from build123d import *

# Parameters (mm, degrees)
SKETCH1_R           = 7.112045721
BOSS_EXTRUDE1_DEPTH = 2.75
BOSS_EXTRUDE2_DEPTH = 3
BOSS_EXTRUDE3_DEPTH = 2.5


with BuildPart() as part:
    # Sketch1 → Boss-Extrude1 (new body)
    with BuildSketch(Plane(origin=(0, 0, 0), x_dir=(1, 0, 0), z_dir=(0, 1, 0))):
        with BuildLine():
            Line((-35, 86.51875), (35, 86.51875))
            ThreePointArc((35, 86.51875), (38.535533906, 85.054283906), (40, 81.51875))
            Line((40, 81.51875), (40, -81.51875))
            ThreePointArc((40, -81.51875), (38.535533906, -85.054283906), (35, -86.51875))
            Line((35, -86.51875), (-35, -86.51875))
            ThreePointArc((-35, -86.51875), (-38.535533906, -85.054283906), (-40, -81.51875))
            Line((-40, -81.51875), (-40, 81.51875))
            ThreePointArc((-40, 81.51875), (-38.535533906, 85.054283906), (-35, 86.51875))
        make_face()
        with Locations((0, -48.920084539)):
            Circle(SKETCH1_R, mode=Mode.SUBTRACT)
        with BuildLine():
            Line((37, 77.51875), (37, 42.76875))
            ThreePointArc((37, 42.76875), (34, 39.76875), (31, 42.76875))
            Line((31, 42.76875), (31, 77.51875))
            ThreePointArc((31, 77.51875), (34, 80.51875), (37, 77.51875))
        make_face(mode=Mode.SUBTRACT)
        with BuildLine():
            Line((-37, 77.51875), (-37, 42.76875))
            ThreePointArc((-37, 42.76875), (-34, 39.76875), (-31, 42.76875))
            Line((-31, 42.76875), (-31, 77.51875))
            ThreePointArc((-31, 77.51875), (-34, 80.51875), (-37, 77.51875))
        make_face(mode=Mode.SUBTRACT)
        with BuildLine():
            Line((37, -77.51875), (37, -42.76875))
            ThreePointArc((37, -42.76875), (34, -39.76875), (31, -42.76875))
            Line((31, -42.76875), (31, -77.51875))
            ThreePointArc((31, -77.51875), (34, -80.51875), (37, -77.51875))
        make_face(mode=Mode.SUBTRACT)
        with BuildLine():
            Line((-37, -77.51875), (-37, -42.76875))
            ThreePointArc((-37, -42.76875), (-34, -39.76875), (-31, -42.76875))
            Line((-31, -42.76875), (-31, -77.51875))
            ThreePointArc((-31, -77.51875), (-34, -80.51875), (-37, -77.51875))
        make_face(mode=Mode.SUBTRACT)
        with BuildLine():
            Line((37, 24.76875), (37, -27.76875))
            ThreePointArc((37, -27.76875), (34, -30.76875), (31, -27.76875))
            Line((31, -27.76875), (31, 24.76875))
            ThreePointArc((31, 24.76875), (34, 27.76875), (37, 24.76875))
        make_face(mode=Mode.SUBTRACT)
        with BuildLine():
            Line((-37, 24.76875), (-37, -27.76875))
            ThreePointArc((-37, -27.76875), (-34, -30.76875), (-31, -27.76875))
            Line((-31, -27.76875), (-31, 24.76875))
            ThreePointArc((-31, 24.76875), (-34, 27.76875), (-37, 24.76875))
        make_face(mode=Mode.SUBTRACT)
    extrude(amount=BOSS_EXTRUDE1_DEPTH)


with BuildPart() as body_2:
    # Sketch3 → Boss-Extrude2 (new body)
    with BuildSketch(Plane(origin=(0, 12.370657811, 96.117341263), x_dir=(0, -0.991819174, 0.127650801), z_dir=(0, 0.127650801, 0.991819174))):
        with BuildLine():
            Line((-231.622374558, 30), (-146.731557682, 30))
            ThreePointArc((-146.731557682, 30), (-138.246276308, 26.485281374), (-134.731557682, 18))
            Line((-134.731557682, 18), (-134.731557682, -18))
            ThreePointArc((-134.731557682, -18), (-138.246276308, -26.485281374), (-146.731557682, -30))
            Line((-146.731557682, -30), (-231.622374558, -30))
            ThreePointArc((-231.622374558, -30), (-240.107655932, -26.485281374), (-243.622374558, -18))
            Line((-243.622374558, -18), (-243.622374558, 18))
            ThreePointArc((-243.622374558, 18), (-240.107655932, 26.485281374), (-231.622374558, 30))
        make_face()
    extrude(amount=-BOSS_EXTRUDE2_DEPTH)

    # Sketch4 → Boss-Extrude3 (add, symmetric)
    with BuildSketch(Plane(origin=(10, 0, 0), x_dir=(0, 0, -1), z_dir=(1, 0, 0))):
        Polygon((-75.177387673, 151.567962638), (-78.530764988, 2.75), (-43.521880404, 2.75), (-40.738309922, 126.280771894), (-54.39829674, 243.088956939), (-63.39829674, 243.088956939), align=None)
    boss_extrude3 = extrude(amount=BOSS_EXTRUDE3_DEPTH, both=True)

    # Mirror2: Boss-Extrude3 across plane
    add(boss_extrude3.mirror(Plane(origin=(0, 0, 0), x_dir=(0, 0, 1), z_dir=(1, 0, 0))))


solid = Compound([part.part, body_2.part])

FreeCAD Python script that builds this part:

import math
import FreeCAD as App
import Part
import Sketcher

doc = App.newDocument("Part")
body = doc.addObject("PartDesign::Body", "Body")

sketch1 = doc.addObject("Sketcher::SketchObject", "Sketch")
body.addObject(sketch1)
sketch1.AttachmentSupport = (doc.XZ_Plane, [""])
sketch1.MapMode = "FlatFace"
sketch1.addGeometry(Part.LineSegment(App.Vector(35, -86.51875, 0), App.Vector(-35, -86.51875, 0)), False)
sketch1.addGeometry(Part.ArcOfCircle(Part.Circle(App.Vector(-35, -81.51875, 0), App.Vector(0, 0, 1), 5), math.radians(180), math.radians(270)), False)
sketch1.addGeometry(Part.LineSegment(App.Vector(-40, -81.51875, 0), App.Vector(-40, 81.51875, 0)), False)
sketch1.addGeometry(Part.ArcOfCircle(Part.Circle(App.Vector(-35, 81.51875, 0), App.Vector(0, 0, 1), 5), math.radians(90), math.radians(180)), False)
sketch1.addGeometry(Part.LineSegment(App.Vector(-35, 86.51875, 0), App.Vector(35, 86.51875, 0)), False)
sketch1.addGeometry(Part.ArcOfCircle(Part.Circle(App.Vector(35, 81.51875, 0), App.Vector(0, 0, 1), 5), math.radians(0), math.radians(90)), False)
sketch1.addGeometry(Part.LineSegment(App.Vector(40, 81.51875, 0), App.Vector(40, -81.51875, 0)), False)
sketch1.addGeometry(Part.ArcOfCircle(Part.Circle(App.Vector(35, -81.51875, 0), App.Vector(0, 0, 1), 5), math.radians(-90), math.radians(0)), False)
sketch1.addGeometry(Part.ArcOfCircle(Part.Circle(App.Vector(34, 77.51875, 0), App.Vector(0, 0, 1), 3), math.radians(0), math.radians(180)), False)
sketch1.addGeometry(Part.LineSegment(App.Vector(31, 77.51875, 0), App.Vector(31, 42.76875, 0)), False)
sketch1.addGeometry(Part.ArcOfCircle(Part.Circle(App.Vector(34, 42.76875, 0), App.Vector(0, 0, 1), 3), math.radians(180), math.radians(360)), False)
sketch1.addGeometry(Part.LineSegment(App.Vector(37, 42.76875, 0), App.Vector(37, 77.51875, 0)), False)
sketch1.addGeometry(Part.LineSegment(App.Vector(37, -24.76875, 0), App.Vector(37, 27.76875, 0)), False)
sketch1.addGeometry(Part.ArcOfCircle(Part.Circle(App.Vector(34, 27.76875, 0), App.Vector(0, 0, 1), 3), math.radians(0), math.radians(180)), False)
sketch1.addGeometry(Part.LineSegment(App.Vector(31, 27.76875, 0), App.Vector(31, -24.76875, 0)), False)
sketch1.addGeometry(Part.ArcOfCircle(Part.Circle(App.Vector(34, -24.76875, 0), App.Vector(0, 0, 1), 3), math.radians(180), math.radians(360)), False)
sketch1.addGeometry(Part.Circle(App.Vector(0, 48.920085, 0), App.Vector(0, 0, 1), 7.112046), False)
sketch1.addGeometry(Part.LineSegment(App.Vector(-37, 77.51875, 0), App.Vector(-37, 42.76875, 0)), False)
sketch1.addGeometry(Part.ArcOfCircle(Part.Circle(App.Vector(-34, 42.76875, 0), App.Vector(0, 0, 1), 3), math.radians(180), math.radians(360)), False)
sketch1.addGeometry(Part.LineSegment(App.Vector(-31, 42.76875, 0), App.Vector(-31, 77.51875, 0)), False)
sketch1.addGeometry(Part.ArcOfCircle(Part.Circle(App.Vector(-34, 77.51875, 0), App.Vector(0, 0, 1), 3), math.radians(0), math.radians(180)), False)
sketch1.addGeometry(Part.ArcOfCircle(Part.Circle(App.Vector(-34, -24.76875, 0), App.Vector(0, 0, 1), 3), math.radians(180), math.radians(360)), False)
sketch1.addGeometry(Part.LineSegment(App.Vector(-31, -24.76875, 0), App.Vector(-31, 27.76875, 0)), False)
sketch1.addGeometry(Part.ArcOfCircle(Part.Circle(App.Vector(-34, 27.76875, 0), App.Vector(0, 0, 1), 3), math.radians(0), math.radians(180)), False)
sketch1.addGeometry(Part.LineSegment(App.Vector(-37, 27.76875, 0), App.Vector(-37, -24.76875, 0)), False)
sketch1.addGeometry(Part.LineSegment(App.Vector(37, -77.51875, 0), App.Vector(37, -42.76875, 0)), False)
sketch1.addGeometry(Part.ArcOfCircle(Part.Circle(App.Vector(34, -42.76875, 0), App.Vector(0, 0, 1), 3), math.radians(0), math.radians(180)), False)
sketch1.addGeometry(Part.LineSegment(App.Vector(31, -42.76875, 0), App.Vector(31, -77.51875, 0)), False)
sketch1.addGeometry(Part.ArcOfCircle(Part.Circle(App.Vector(34, -77.51875, 0), App.Vector(0, 0, 1), 3), math.radians(180), math.radians(360)), False)
sketch1.addGeometry(Part.ArcOfCircle(Part.Circle(App.Vector(-34, -77.51875, 0), App.Vector(0, 0, 1), 3), math.radians(180), math.radians(360)), False)
sketch1.addGeometry(Part.LineSegment(App.Vector(-31, -77.51875, 0), App.Vector(-31, -42.76875, 0)), False)
sketch1.addGeometry(Part.ArcOfCircle(Part.Circle(App.Vector(-34, -42.76875, 0), App.Vector(0, 0, 1), 3), math.radians(0), math.radians(180)), False)
sketch1.addGeometry(Part.LineSegment(App.Vector(-37, -42.76875, 0), App.Vector(-37, -77.51875, 0)), False)
sketch1.addConstraint(Sketcher.Constraint("Tangent", 0, 2, 1, 2))
sketch1.addConstraint(Sketcher.Constraint("Tangent", 1, 1, 2, 1))
sketch1.addConstraint(Sketcher.Constraint("Tangent", 2, 2, 3, 2))
sketch1.addConstraint(Sketcher.Constraint("Tangent", 3, 1, 4, 1))
sketch1.addConstraint(Sketcher.Constraint("Tangent", 4, 2, 5, 2))
sketch1.addConstraint(Sketcher.Constraint("Tangent", 5, 1, 6, 1))
sketch1.addConstraint(Sketcher.Constraint("Tangent", 6, 2, 7, 2))
sketch1.addConstraint(Sketcher.Constraint("Tangent", 7, 1, 0, 1))
sketch1.addConstraint(Sketcher.Constraint("Tangent", 8, 2, 9, 1))
sketch1.addConstraint(Sketcher.Constraint("Tangent", 9, 2, 10, 1))
sketch1.addConstraint(Sketcher.Constraint("Tangent", 10, 2, 11, 1))
sketch1.addConstraint(Sketcher.Constraint("Tangent", 11, 2, 8, 1))
sketch1.addConstraint(Sketcher.Constraint("Tangent", 12, 2, 13, 1))
sketch1.addConstraint(Sketcher.Constraint("Tangent", 13, 2, 14, 1))
sketch1.addConstraint(Sketcher.Constraint("Tangent", 14, 2, 15, 1))
sketch1.addConstraint(Sketcher.Constraint("Tangent", 15, 2, 12, 1))
sketch1.addConstraint(Sketcher.Constraint("Tangent", 17, 2, 18, 1))
sketch1.addConstraint(Sketcher.Constraint("Tangent", 18, 2, 19, 1))
sketch1.addConstraint(Sketcher.Constraint("Tangent", 19, 2, 20, 1))
sketch1.addConstraint(Sketcher.Constraint("Tangent", 20, 2, 17, 1))
sketch1.addConstraint(Sketcher.Constraint("Tangent", 21, 2, 22, 1))
sketch1.addConstraint(Sketcher.Constraint("Tangent", 22, 2, 23, 1))
sketch1.addConstraint(Sketcher.Constraint("Tangent", 23, 2, 24, 1))
sketch1.addConstraint(Sketcher.Constraint("Tangent", 24, 2, 21, 1))
sketch1.addConstraint(Sketcher.Constraint("Tangent", 25, 2, 26, 1))
sketch1.addConstraint(Sketcher.Constraint("Tangent", 26, 2, 27, 1))
sketch1.addConstraint(Sketcher.Constraint("Tangent", 27, 2, 28, 1))
sketch1.addConstraint(Sketcher.Constraint("Tangent", 28, 2, 25, 1))
sketch1.addConstraint(Sketcher.Constraint("Tangent", 29, 2, 30, 1))
sketch1.addConstraint(Sketcher.Constraint("Tangent", 30, 2, 31, 1))
sketch1.addConstraint(Sketcher.Constraint("Tangent", 31, 2, 32, 1))
sketch1.addConstraint(Sketcher.Constraint("Tangent", 32, 2, 29, 1))
sketch1.addConstraint(Sketcher.Constraint("Horizontal", 0))
sketch1.addConstraint(Sketcher.Constraint("Vertical", 2))
sketch1.addConstraint(Sketcher.Constraint("Horizontal", 4))
sketch1.addConstraint(Sketcher.Constraint("Vertical", 6))
sketch1.addConstraint(Sketcher.Constraint("Vertical", 9))
sketch1.addConstraint(Sketcher.Constraint("Vertical", 11))
sketch1.addConstraint(Sketcher.Constraint("Vertical", 12))
sketch1.addConstraint(Sketcher.Constraint("Vertical", 14))
sketch1.addConstraint(Sketcher.Constraint("Vertical", 17))
sketch1.addConstraint(Sketcher.Constraint("Vertical", 19))
sketch1.addConstraint(Sketcher.Constraint("Vertical", 22))
sketch1.addConstraint(Sketcher.Constraint("Vertical", 24))
sketch1.addConstraint(Sketcher.Constraint("Vertical", 25))
sketch1.addConstraint(Sketcher.Constraint("Vertical", 27))
sketch1.addConstraint(Sketcher.Constraint("Vertical", 30))
sketch1.addConstraint(Sketcher.Constraint("Vertical", 32))
sketch1.addConstraint(Sketcher.Constraint("Equal", 1, 3))
sketch1.addConstraint(Sketcher.Constraint("Equal", 3, 5))
sketch1.addConstraint(Sketcher.Constraint("Equal", 5, 7))
sketch1.addConstraint(Sketcher.Constraint("Equal", 10, 13))
sketch1.addConstraint(Sketcher.Constraint("Equal", 15, 18))
sketch1.addConstraint(Sketcher.Constraint("Equal", 20, 21))
sketch1.addConstraint(Sketcher.Constraint("Equal", 23, 26))
sketch1.addConstraint(Sketcher.Constraint("Equal", 28, 29))
sketch1.addConstraint(Sketcher.Constraint("Symmetric", 1, 3, 5, 3, -1, 1))
sketch1.addConstraint(Sketcher.Constraint("Symmetric", 18, 3, 26, 3, -1, 1))
sketch1.addConstraint(Sketcher.Constraint("Symmetric", 8, 3, 29, 3, -1, 1))
sketch1.addConstraint(Sketcher.Constraint("Symmetric", 10, 3, 18, 3, -2))
sketch1.addConstraint(Sketcher.Constraint("Symmetric", 15, 3, 21, 3, -2))
sketch1.addConstraint(Sketcher.Constraint("PointOnObject", 16, 3, -2))
sketch1.addConstraint(Sketcher.Constraint("Horizontal", 8, 3, 20, 3))
sketch1.addConstraint(Sketcher.Constraint("Horizontal", 13, 3, 23, 3))
sketch1.addConstraint(Sketcher.Constraint("Horizontal", 28, 3, 29, 3))
sketch1.addConstraint(Sketcher.Constraint("Horizontal", 26, 3, 31, 3))
sketch1.addConstraint(Sketcher.Constraint("Vertical", 10, 3, 13, 3))
sketch1.addConstraint(Sketcher.Constraint("Radius", 1, 5.0))
sketch1.addConstraint(Sketcher.Constraint("Radius", 8, 3.0))
sketch1.addConstraint(Sketcher.Constraint("DistanceX", 0, 2, 0, 1, 70.0))
sketch1.addConstraint(Sketcher.Constraint("DistanceX", -1, 1, 8, 3, 34.0))
sketch1.addConstraint(Sketcher.Constraint("DistanceY", 8, 3, 5, 3, 4.0))
sketch1.addConstraint(Sketcher.Constraint("DistanceY", 13, 3, 10, 3, 15.0))
sketch1.addConstraint(Sketcher.Constraint("DistanceY", 26, 3, 15, 3, 18.0))
sketch1.addConstraint(Sketcher.Constraint("DistanceY", 9, 2, 9, 1, 34.75))
sketch1.addConstraint(Sketcher.Constraint("Diameter", 16, 14.224091))
sketch1.addConstraint(Sketcher.Constraint("DistanceY", 2, 1, 2, 2, 163.0375))
sketch1.addConstraint(Sketcher.Constraint("DistanceY", -1, 1, 16, 3, 48.920085))
pad1 = doc.addObject("PartDesign::Pad", "Pad")
body.addObject(pad1)
pad1.Profile = sketch1
pad1.Length = 2.75
pad1.Reversed = True
body2 = doc.addObject("PartDesign::Body", "Body001")

sketch2 = doc.addObject("Sketcher::SketchObject", "Sketch001")
body2.addObject(sketch2)
sketch2.Placement = App.Placement(App.Vector(0, 12.370658, 96.117341), App.Rotation(App.Vector(0, -0.991819174, 0.127650801), App.Vector(1.000000001, 0, 0), App.Vector(0, 0.127650801, 0.991819174), "ZXY"))
sketch2.addGeometry(Part.LineSegment(App.Vector(-146.731558, 30, 0), App.Vector(-231.622375, 30, 0)), False)
sketch2.addGeometry(Part.ArcOfCircle(Part.Circle(App.Vector(-231.622375, 18, 0), App.Vector(0, 0, 1), 12), math.radians(90), math.radians(180)), False)
sketch2.addGeometry(Part.LineSegment(App.Vector(-243.622375, 18, 0), App.Vector(-243.622375, -18, 0)), False)
sketch2.addGeometry(Part.ArcOfCircle(Part.Circle(App.Vector(-231.622375, -18, 0), App.Vector(0, 0, 1), 12), math.radians(-180), math.radians(-90)), False)
sketch2.addGeometry(Part.LineSegment(App.Vector(-231.622375, -30, 0), App.Vector(-146.731558, -30, 0)), False)
sketch2.addGeometry(Part.ArcOfCircle(Part.Circle(App.Vector(-146.731558, -18, 0), App.Vector(0, 0, 1), 12), math.radians(-90), math.radians(0)), False)
sketch2.addGeometry(Part.LineSegment(App.Vector(-134.731558, -18, 0), App.Vector(-134.731558, 18, 0)), False)
sketch2.addGeometry(Part.ArcOfCircle(Part.Circle(App.Vector(-146.731558, 18, 0), App.Vector(0, 0, 1), 12), math.radians(0), math.radians(90)), False)
sketch2.addConstraint(Sketcher.Constraint("Tangent", 0, 2, 1, 1))
sketch2.addConstraint(Sketcher.Constraint("Tangent", 1, 2, 2, 1))
sketch2.addConstraint(Sketcher.Constraint("Tangent", 2, 2, 3, 1))
sketch2.addConstraint(Sketcher.Constraint("Tangent", 3, 2, 4, 1))
sketch2.addConstraint(Sketcher.Constraint("Tangent", 4, 2, 5, 1))
sketch2.addConstraint(Sketcher.Constraint("Tangent", 5, 2, 6, 1))
sketch2.addConstraint(Sketcher.Constraint("Tangent", 6, 2, 7, 1))
sketch2.addConstraint(Sketcher.Constraint("Tangent", 7, 2, 0, 1))
sketch2.addConstraint(Sketcher.Constraint("Horizontal", 0))
sketch2.addConstraint(Sketcher.Constraint("Vertical", 2))
sketch2.addConstraint(Sketcher.Constraint("Horizontal", 4))
sketch2.addConstraint(Sketcher.Constraint("Vertical", 6))
sketch2.addConstraint(Sketcher.Constraint("Equal", 1, 3))
sketch2.addConstraint(Sketcher.Constraint("Equal", 3, 5))
sketch2.addConstraint(Sketcher.Constraint("Equal", 5, 7))
sketch2.addConstraint(Sketcher.Constraint("Radius", 1, 12.0))
sketch2.addConstraint(Sketcher.Constraint("DistanceY", 2, 2, 2, 1, 36.0))
sketch2.addConstraint(Sketcher.Constraint("DistanceY", -1, 1, 1, 3, 18.0))
sketch2.addConstraint(Sketcher.Constraint("DistanceX", 0, 2, 0, 1, 84.890817))
sketch2.addConstraint(Sketcher.Constraint("DistanceX", 1, 3, -1, 1, 231.622375))
pad2 = doc.addObject("PartDesign::Pad", "Pad001")
body2.addObject(pad2)
pad2.Profile = sketch2
pad2.Length = 3
pad2.Reversed = True

sketch3 = doc.addObject("Sketcher::SketchObject", "Sketch002")
body2.addObject(sketch3)
sketch3.AttachmentSupport = (doc.getObject("YZ_Plane001"), [""])
sketch3.MapMode = "FlatFace"
sketch3.AttachmentOffset = App.Placement(App.Vector(0, 0, 10), App.Rotation())
sketch3.addGeometry(Part.LineSegment(App.Vector(151.567963, 75.177388, 0), App.Vector(2.75, 78.530765, 0)), False)
sketch3.addGeometry(Part.LineSegment(App.Vector(2.75, 78.530765, 0), App.Vector(2.75, 43.52188, 0)), False)
sketch3.addGeometry(Part.LineSegment(App.Vector(2.75, 43.52188, 0), App.Vector(126.280772, 40.73831, 0)), False)
sketch3.addGeometry(Part.LineSegment(App.Vector(126.280772, 40.73831, 0), App.Vector(243.088957, 54.398297, 0)), False)
sketch3.addGeometry(Part.LineSegment(App.Vector(243.088957, 54.398297, 0), App.Vector(243.088957, 63.398297, 0)), False)
sketch3.addGeometry(Part.LineSegment(App.Vector(243.088957, 63.398297, 0), App.Vector(151.567963, 75.177388, 0)), False)
sketch3.addConstraint(Sketcher.Constraint("Coincident", 0, 2, 1, 1))
sketch3.addConstraint(Sketcher.Constraint("Coincident", 1, 2, 2, 1))
sketch3.addConstraint(Sketcher.Constraint("Coincident", 2, 2, 3, 1))
sketch3.addConstraint(Sketcher.Constraint("Coincident", 3, 2, 4, 1))
sketch3.addConstraint(Sketcher.Constraint("Coincident", 4, 2, 5, 1))
sketch3.addConstraint(Sketcher.Constraint("Coincident", 5, 2, 0, 1))
sketch3.addConstraint(Sketcher.Constraint("Vertical", 1))
sketch3.addConstraint(Sketcher.Constraint("Vertical", 4))
sketch3.addConstraint(Sketcher.Constraint("Parallel", 0, 2))
sketch3.addConstraint(Sketcher.Constraint("DistanceY", 4, 1, 4, 2, 9.0))
sketch3.addConstraint(Sketcher.Constraint("DistanceX", -1, 1, 0, 2, 2.75))
sketch3.addConstraint(Sketcher.Constraint("Distance", 0, 148.855739))
sketch3.addConstraint(Sketcher.Constraint("Distance", 2, 123.56213))
sketch3.addConstraint(Sketcher.Constraint("DistanceY", 1, 2, 1, 1, 35.008885))
sketch3.addConstraint(Sketcher.Constraint("DistanceY", -1, 1, 1, 2, 43.52188))
sketch3.addConstraint(Sketcher.Constraint("DistanceX", -1, 1, 2, 2, 126.280772))
sketch3.addConstraint(Sketcher.Constraint("DistanceY", 3, 2, 0, 2, 24.132468))
sketch3.addConstraint(Sketcher.Constraint("Distance", 3, 117.604198))
pad3 = doc.addObject("PartDesign::Pad", "Pad002")
body2.addObject(pad3)
pad3.Profile = sketch3
pad3.Length = 5
pad3.Midplane = True
doc.recompute()

mirrored = doc.addObject("PartDesign::Mirrored", "Mirrored")
body2.addObject(mirrored)
mirrored.Originals = [pad3]
mirrored.MirrorPlane = (doc.getObject("YZ_Plane001"), [""])
body2.Tip = mirrored

doc.recompute()
